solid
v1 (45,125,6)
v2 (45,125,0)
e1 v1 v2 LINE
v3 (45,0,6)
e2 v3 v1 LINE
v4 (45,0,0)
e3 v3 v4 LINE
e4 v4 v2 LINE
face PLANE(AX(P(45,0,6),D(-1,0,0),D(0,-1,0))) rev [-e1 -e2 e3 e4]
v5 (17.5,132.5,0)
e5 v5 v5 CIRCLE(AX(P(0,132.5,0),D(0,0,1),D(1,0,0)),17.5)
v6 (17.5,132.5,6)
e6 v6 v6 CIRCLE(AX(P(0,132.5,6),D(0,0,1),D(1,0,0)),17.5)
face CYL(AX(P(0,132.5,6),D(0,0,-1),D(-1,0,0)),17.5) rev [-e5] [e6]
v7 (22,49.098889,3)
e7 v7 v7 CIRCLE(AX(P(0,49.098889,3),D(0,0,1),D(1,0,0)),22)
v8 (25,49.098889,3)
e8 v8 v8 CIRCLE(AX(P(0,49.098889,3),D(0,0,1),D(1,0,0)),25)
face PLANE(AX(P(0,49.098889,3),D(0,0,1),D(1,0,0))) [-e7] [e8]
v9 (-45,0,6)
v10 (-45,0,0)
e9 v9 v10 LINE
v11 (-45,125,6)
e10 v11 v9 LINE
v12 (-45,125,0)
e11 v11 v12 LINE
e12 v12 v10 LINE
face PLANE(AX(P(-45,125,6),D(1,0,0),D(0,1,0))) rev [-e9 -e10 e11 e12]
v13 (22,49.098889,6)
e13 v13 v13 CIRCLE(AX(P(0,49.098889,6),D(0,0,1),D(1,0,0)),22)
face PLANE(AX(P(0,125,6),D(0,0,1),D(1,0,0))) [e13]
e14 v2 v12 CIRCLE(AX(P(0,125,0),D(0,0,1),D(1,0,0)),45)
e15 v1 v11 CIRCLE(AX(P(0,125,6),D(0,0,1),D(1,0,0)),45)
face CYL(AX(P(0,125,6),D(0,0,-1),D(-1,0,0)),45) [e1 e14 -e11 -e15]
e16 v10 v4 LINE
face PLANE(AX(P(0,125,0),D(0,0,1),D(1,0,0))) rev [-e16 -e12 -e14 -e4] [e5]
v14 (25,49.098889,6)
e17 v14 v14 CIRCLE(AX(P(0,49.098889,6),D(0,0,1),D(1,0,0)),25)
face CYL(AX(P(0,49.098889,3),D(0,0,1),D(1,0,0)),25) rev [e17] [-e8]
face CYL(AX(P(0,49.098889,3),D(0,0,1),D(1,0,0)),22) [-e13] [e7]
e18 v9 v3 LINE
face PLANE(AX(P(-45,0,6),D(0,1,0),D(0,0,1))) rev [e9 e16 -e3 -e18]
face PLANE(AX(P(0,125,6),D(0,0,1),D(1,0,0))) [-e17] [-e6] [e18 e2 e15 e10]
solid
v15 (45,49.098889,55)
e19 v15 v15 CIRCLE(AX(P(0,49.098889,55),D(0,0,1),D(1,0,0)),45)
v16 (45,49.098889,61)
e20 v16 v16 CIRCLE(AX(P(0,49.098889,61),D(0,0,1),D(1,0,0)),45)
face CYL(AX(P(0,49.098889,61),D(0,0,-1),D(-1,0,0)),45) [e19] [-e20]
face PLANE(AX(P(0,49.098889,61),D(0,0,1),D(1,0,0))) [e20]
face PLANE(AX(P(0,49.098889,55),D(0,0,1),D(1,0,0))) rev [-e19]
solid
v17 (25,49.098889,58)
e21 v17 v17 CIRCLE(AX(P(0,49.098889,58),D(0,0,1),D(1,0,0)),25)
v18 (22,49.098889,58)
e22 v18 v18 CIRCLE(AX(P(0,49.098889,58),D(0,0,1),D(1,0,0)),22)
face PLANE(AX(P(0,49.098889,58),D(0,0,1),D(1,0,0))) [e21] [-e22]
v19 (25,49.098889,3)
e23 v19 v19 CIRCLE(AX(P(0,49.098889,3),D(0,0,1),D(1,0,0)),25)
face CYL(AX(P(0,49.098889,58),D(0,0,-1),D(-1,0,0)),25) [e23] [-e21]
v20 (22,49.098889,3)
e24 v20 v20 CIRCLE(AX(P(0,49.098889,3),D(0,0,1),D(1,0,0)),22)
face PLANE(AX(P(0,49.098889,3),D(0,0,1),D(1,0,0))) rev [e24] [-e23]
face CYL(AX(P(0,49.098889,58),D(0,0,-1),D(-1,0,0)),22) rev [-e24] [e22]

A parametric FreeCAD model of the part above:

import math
import FreeCAD as App
import Part
import Sketcher

doc = App.newDocument("Part")
params = doc.addObject("Spreadsheet::Sheet", "Params")
for row, (alias, value) in enumerate([
    ("sketch1_diameter", "35 mm"),
    ("sketch1_radius", "45 mm"),
    ("sketch1_height", "125 mm"),
    ("pad1_length", "6 mm"),
    ("sketch2_diameter", "50 mm"),
    ("sketch2_diameter2", "44 mm"),
    ("pocket1_length", "3 mm"),
    ("sketch3_diameter", "50 mm"),
    ("sketch3_diameter2", "44 mm"),
    ("pad2_length", "55 mm"),
    ("sketch4_diameter", "90 mm"),
    ("pad3_length", "6 mm"),
], start=1):
    params.set(f"A{row}", alias)
    params.set(f"B{row}", "=" + value)
    params.setAlias(f"B{row}", alias)

body = doc.addObject("PartDesign::Body", "Body")

sketch1 = body.newObject("Sketcher::SketchObject", "Sketch")
sketch1.AttachmentSupport = (doc.getObject("XY_Plane"), [""])
sketch1.MapMode = "FlatFace"
sketch1.addGeometry([
    Part.LineSegment(App.Vector(-45, 0, 0), App.Vector(45, 0, 0)),
    Part.LineSegment(App.Vector(45, 0, 0), App.Vector(45, 125, 0)),
    Part.ArcOfCircle(Part.Circle(App.Vector(0, 125, 0), App.Vector(0, 0, 1), 45), math.radians(0), math.radians(180)),
    Part.LineSegment(App.Vector(-45, 125, 0), App.Vector(-45, 0, 0)),
    Part.Circle(App.Vector(0, 132, 0), App.Vector(0, 0, 1), 18),
], False)
sketch1.addConstraint([
    Sketcher.Constraint("Coincident", 0, 2, 1, 1),
    Sketcher.Constraint("Tangent", 1, 2, 2, 1),
    Sketcher.Constraint("Tangent", 2, 2, 3, 1),
    Sketcher.Constraint("Coincident", 3, 2, 0, 1),
    Sketcher.Constraint("Horizontal", 0),
    Sketcher.Constraint("Vertical", 1),
    Sketcher.Constraint("Vertical", 3),
    Sketcher.Constraint("Symmetric", 0, 2, 3, 2, -1, 1),
    Sketcher.Constraint("PointOnObject", 4, 3, -2),
    Sketcher.Constraint("Diameter", 4, 35.0),
    Sketcher.Constraint("Radius", 2, 45.0),
    Sketcher.Constraint("DistanceY", 1, 1, 1, 2, 125.0),
    Sketcher.Constraint("DistanceY", -1, 1, 4, 3, 132.5),
])
sketch1.setExpression("Constraints[9]", "Params.sketch1_diameter")
sketch1.setExpression("Constraints[10]", "Params.sketch1_radius")
sketch1.setExpression("Constraints[11]", "Params.sketch1_height")
pad1 = body.newObject("PartDesign::Pad", "Pad")
pad1.Profile = sketch1
pad1.setExpression("Length", "Params.pad1_length")

sketch2 = body.newObject("Sketcher::SketchObject", "Sketch001")
sketch2.AttachmentSupport = (doc.getObject("XY_Plane"), [""])
sketch2.MapMode = "FlatFace"
sketch2.AttachmentOffset = App.Placement(App.Vector(0, 0, 6), App.Rotation())
sketch2.addGeometry([
    Part.Circle(App.Vector(0, 49, 0), App.Vector(0, 0, 1), 25),
    Part.Circle(App.Vector(0, 49, 0), App.Vector(0, 0, 1), 22),
], False)
sketch2.addConstraint([
    Sketcher.Constraint("Coincident", 1, 3, 0, 3),
    Sketcher.Constraint("PointOnObject", 0, 3, -2),
    Sketcher.Constraint("Diameter", 0, 50.0),
    Sketcher.Constraint("Diameter", 1, 44.0),
    Sketcher.Constraint("DistanceY", -1, 1, 0, 3, 49.098889),
])
sketch2.setExpression("Constraints[2]", "Params.sketch2_diameter")
sketch2.setExpression("Constraints[3]", "Params.sketch2_diameter2")
pocket1 = body.newObject("PartDesign::Pocket", "Pocket")
pocket1.Profile = sketch2
pocket1.setExpression("Length", "Params.pocket1_length")
body2 = doc.addObject("PartDesign::Body", "Body001")

sketch3 = body2.newObject("Sketcher::SketchObject", "Sketch002")
sketch3.AttachmentSupport = (doc.getObject("XY_Plane001"), [""])
sketch3.MapMode = "FlatFace"
sketch3.AttachmentOffset = App.Placement(App.Vector(0, 0, 3), App.Rotation())
sketch3.addGeometry([
    Part.Circle(App.Vector(0, 49, 0), App.Vector(0, 0, 1), 25),
    Part.Circle(App.Vector(0, 49, 0), App.Vector(0, 0, 1), 22),
], False)
sketch3.addConstraint([
    Sketcher.Constraint("Coincident", 1, 3, 0, 3),
    Sketcher.Constraint("PointOnObject", 0, 3, -2),
    Sketcher.Constraint("Diameter", 0, 50.0),
    Sketcher.Constraint("Diameter", 1, 44.0),
    Sketcher.Constraint("DistanceY", -1, 1, 0, 3, 49.098889),
])
sketch3.setExpression("Constraints[2]", "Params.sketch3_diameter")
sketch3.setExpression("Constraints[3]", "Params.sketch3_diameter2")
pad2 = body2.newObject("PartDesign::Pad", "Pad001")
pad2.Profile = sketch3
pad2.setExpression("Length", "Params.pad2_length")
body3 = doc.addObject("PartDesign::Body", "Body002")

sketch4 = body3.newObject("Sketcher::SketchObject", "Sketch003")
sketch4.AttachmentSupport = (doc.getObject("XY_Plane002"), [""])
sketch4.MapMode = "FlatFace"
sketch4.AttachmentOffset = App.Placement(App.Vector(0, 0, 55), App.Rotation())
sketch4.addGeometry(Part.Circle(App.Vector(0, 49, 0), App.Vector(0, 0, 1), 45), False)
sketch4.addConstraint([
    Sketcher.Constraint("PointOnObject", 0, 3, -2),
    Sketcher.Constraint("Diameter", 0, 90.0),
    Sketcher.Constraint("DistanceY", -1, 1, 0, 3, 49.098889),
])
sketch4.setExpression("Constraints[1]", "Params.sketch4_diameter")
pad3 = body3.newObject("PartDesign::Pad", "Pad002")
pad3.Profile = sketch4
pad3.setExpression("Length", "Params.pad3_length")

doc.recompute()
